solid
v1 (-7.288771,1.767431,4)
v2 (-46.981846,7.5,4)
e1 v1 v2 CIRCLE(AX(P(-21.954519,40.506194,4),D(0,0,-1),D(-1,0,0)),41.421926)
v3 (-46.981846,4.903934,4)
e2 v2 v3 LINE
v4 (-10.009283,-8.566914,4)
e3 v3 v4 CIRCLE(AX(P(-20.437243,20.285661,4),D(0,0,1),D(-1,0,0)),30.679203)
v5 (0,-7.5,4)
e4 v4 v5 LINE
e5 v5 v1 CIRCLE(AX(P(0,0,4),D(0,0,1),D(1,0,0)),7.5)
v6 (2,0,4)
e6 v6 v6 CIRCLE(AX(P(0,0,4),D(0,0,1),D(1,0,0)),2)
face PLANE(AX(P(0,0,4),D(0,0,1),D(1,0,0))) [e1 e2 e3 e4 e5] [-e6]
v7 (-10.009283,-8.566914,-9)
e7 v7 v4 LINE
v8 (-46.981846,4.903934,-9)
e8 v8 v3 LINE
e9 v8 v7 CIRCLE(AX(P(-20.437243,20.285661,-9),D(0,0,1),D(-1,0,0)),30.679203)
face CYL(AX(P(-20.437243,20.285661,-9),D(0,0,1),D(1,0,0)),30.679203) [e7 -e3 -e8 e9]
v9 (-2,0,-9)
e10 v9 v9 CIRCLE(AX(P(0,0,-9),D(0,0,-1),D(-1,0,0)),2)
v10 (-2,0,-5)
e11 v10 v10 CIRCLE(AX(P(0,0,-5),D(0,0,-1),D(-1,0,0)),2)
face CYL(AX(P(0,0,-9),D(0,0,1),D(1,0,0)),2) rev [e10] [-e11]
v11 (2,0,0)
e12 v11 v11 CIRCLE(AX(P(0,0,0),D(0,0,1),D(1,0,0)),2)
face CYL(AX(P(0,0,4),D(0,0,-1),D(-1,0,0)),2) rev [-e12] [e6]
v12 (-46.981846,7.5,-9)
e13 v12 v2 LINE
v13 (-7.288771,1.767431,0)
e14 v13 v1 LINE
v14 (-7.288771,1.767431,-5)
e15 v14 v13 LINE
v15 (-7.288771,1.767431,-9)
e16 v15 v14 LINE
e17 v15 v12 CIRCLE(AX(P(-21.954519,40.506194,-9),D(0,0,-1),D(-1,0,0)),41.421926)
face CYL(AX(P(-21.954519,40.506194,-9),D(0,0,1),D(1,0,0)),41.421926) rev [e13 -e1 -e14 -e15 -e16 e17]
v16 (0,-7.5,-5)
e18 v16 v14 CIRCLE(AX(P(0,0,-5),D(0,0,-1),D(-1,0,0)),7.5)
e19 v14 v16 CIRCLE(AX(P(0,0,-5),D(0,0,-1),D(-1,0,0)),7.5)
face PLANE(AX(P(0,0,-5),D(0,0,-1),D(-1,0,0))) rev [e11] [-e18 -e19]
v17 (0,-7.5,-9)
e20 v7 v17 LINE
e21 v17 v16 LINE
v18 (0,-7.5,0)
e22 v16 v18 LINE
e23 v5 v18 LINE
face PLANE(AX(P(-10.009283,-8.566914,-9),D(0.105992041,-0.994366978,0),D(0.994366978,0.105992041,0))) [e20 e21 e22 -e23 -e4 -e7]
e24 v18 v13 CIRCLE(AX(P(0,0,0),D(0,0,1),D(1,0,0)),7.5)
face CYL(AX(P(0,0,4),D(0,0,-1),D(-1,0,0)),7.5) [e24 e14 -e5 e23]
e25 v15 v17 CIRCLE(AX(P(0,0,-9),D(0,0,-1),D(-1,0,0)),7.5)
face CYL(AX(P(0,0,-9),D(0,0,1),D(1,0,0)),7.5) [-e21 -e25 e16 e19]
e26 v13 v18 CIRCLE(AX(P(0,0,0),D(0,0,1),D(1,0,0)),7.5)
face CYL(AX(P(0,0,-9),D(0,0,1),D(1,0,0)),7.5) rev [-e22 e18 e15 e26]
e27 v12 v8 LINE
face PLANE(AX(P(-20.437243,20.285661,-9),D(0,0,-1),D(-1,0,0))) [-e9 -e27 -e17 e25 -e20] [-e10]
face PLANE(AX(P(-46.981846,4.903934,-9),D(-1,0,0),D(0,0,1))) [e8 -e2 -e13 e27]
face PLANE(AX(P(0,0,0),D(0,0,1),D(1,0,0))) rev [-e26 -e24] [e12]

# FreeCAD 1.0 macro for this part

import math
import FreeCAD as App
import Part
import Sketcher

V = App.Vector

doc = App.newDocument("Part")
params = doc.addObject("Spreadsheet::Sheet", "Params")
for row, (alias, value) in enumerate([
    ("sketch1_diameter", "15 mm"),
    ("sketch1_diameter2", "4 mm"),
    ("pad1_length", "4 mm"),
    ("pad2_length", "5 mm"),
    ("pocket1_length", "14 mm"),
    ("sketch4_diameter", "15 mm"),
    ("sketch4_diameter2", "4 mm"),
    ("pad3_length", "4 mm"),
    ("sketch5_radius", "7.5 mm"),
    ("pad4_length", "13 mm"),
], start=1):
    params.set(f"A{row}", alias)
    params.set(f"B{row}", "=" + value)
    params.setAlias(f"B{row}", alias)

body = doc.addObject("PartDesign::Body", "Body")

sketch1 = doc.addObject("Sketcher::SketchObject", "Sketch")
body.addObject(sketch1)
sketch1.AttachmentSupport = (doc.XY_Plane, [""])
sketch1.MapMode = "FlatFace"
sketch1.addGeometry([
    Part.Circle(V(0, 0, 0), V(0, 0, 1), 7.5),
    Part.Circle(V(0, 0, 0), V(0, 0, 1), 2),
], False)
sketch1.addConstraint([
    Sketcher.Constraint("Coincident", 0, 3, -1, 1),
    Sketcher.Constraint("Coincident", 1, 3, -1, 1),
    Sketcher.Constraint("Diameter", 0, 15.0),
    Sketcher.Constraint("Diameter", 1, 4.0),
])
sketch1.setExpression("Constraints[2]", "Params.sketch1_diameter")
sketch1.setExpression("Constraints[3]", "Params.sketch1_diameter2")
pad1 = doc.addObject("PartDesign::Pad", "Pad")
body.addObject(pad1)
pad1.Profile = sketch1
pad1.setExpression("Length", "Params.pad1_length")
body2 = doc.addObject("PartDesign::Body", "Body001")

sketch2 = doc.addObject("Sketcher::SketchObject", "Sketch001")
body2.addObject(sketch2)
sketch2.AttachmentSupport = (doc.getObject("XY_Plane001"), [""])
sketch2.MapMode = "FlatFace"
sketch2.addGeometry(Part.Circle(V(0, 0, 0), V(0, 0, 1), 2.2), False)
sketch2.addConstraint([
    Sketcher.Constraint("Coincident", 0, 3, -1, 1),
    Sketcher.Constraint("Diameter", 0, 4.387559),
])
pad2 = doc.addObject("PartDesign::Pad", "Pad001")
body2.addObject(pad2)
pad2.Profile = sketch2
pad2.setExpression("Length", "Params.pad2_length")
pad2.Reversed = True

sketch3 = doc.addObject("Sketcher::SketchObject", "Sketch002")
body2.addObject(sketch3)
sketch3.AttachmentSupport = (doc.getObject("XY_Plane001"), [""])
sketch3.MapMode = "FlatFace"
sketch3.AttachmentOffset = App.Placement(V(0, 0, -5), App.Rotation())
sketch3.addGeometry(Part.Circle(V(0, 0, 0), V(0, 0, 1), 2.2), False)
sketch3.addConstraint([
    Sketcher.Constraint("Coincident", 0, 3, -1, 1),
    Sketcher.Constraint("Diameter", 0, 4.387559),
])
pocket1 = doc.addObject("PartDesign::Pocket", "Pocket")
body2.addObject(pocket1)
pocket1.Profile = sketch3
pocket1.setExpression("Length", "Params.pocket1_length")
pocket1.Reversed = True
body3 = doc.addObject("PartDesign::Body", "Body002")

sketch4 = doc.addObject("Sketcher::SketchObject", "Sketch003")
body3.addObject(sketch4)
sketch4.AttachmentSupport = (doc.getObject("XY_Plane002"), [""])
sketch4.MapMode = "FlatFace"
sketch4.AttachmentOffset = App.Placement(V(0, 0, -5), App.Rotation())
sketch4.addGeometry([
    Part.Circle(V(0, 0, 0), V(0, 0, 1), 7.5),
    Part.Circle(V(0, 0, 0), V(0, 0, 1), 2),
], False)
sketch4.addConstraint([
    Sketcher.Constraint("Coincident", 0, 3, -1, 1),
    Sketcher.Constraint("Coincident", 1, 3, -1, 1),
    Sketcher.Constraint("Diameter", 0, 15.0),
    Sketcher.Constraint("Diameter", 1, 4.0),
])
sketch4.setExpression("Constraints[2]", "Params.sketch4_diameter")
sketch4.setExpression("Constraints[3]", "Params.sketch4_diameter2")
pad3 = doc.addObject("PartDesign::Pad", "Pad002")
body3.addObject(pad3)
pad3.Profile = sketch4
pad3.setExpression("Length", "Params.pad3_length")
pad3.Reversed = True
body.AllowCompound = True
doc.recompute()

boolean = doc.addObject("PartDesign::Boolean", "Boolean")
body.addObject(boolean)
boolean.Type = "Fuse"
boolean.addObjects([body3])

sketch5 = doc.addObject("Sketcher::SketchObject", "Sketch004")
body.addObject(sketch5)
sketch5.AttachmentSupport = (doc.XY_Plane, [""])
sketch5.MapMode = "FlatFace"
sketch5.AttachmentOffset = App.Placement(V(0, 0, 4), App.Rotation())
sketch5.addGeometry([
    Part.LineSegment(V(-10, -8.6, 0), V(0, -7.5, 0)),
    Part.ArcOfCircle(Part.Circle(V(0, 0, 0), V(0, 0, 1), 7.5), math.radians(166), math.radians(270)),
    Part.ArcOfCircle(Part.Circle(V(-22, 40.5, 0), V(0, 0, 1), 41.4), math.radians(-127), math.radians(-69)),
    Part.LineSegment(V(-47, 7.5, 0), V(-47, 4.9, 0)),
    Part.ArcOfCircle(Part.Circle(V(-20.4, 20.3, 0), V(0, 0, 1), 30.7), math.radians(-150), math.radians(-70)),
], False)
sketch5.addConstraint([
    Sketcher.Constraint("Coincident", 0, 2, 1, 2),
    Sketcher.Constraint("Coincident", 1, 1, 2, 2),
    Sketcher.Constraint("Coincident", 2, 1, 3, 1),
    Sketcher.Constraint("Coincident", 3, 2, 4, 1),
    Sketcher.Constraint("Coincident", 4, 2, 0, 1),
    Sketcher.Constraint("Vertical", 3),
    Sketcher.Constraint("Coincident", 1, 3, -1, 1),
    Sketcher.Constraint("PointOnObject", 0, 2, -2),
    Sketcher.Constraint("Radius", 1, 7.5),
    Sketcher.Constraint("DistanceY", 0, 2, 2, 1, 15.0),
    Sketcher.Constraint("Radius", 2, 41.421926),
    Sketcher.Constraint("Radius", 4, 30.679203),
    Sketcher.Constraint("DistanceY", 3, 2, 3, 1, 2.596066),
    Sketcher.Constraint("DistanceX", 2, 3, -1, 1, 21.954519),
    Sketcher.Constraint("DistanceY", -1, 1, 4, 3, 20.285661),
    Sketcher.Constraint("DistanceX", 1, 1, -1, 1, 7.288771),
    Sketcher.Constraint("DistanceX", 4, 2, 1, 1, 2.720511),
])
sketch5.setExpression("Constraints[8]", "Params.sketch5_radius")
pad4 = doc.addObject("PartDesign::Pad", "Pad003")
body.addObject(pad4)
pad4.Profile = sketch5
pad4.setExpression("Length", "Params.pad4_length")
pad4.Reversed = True

doc.recompute()
